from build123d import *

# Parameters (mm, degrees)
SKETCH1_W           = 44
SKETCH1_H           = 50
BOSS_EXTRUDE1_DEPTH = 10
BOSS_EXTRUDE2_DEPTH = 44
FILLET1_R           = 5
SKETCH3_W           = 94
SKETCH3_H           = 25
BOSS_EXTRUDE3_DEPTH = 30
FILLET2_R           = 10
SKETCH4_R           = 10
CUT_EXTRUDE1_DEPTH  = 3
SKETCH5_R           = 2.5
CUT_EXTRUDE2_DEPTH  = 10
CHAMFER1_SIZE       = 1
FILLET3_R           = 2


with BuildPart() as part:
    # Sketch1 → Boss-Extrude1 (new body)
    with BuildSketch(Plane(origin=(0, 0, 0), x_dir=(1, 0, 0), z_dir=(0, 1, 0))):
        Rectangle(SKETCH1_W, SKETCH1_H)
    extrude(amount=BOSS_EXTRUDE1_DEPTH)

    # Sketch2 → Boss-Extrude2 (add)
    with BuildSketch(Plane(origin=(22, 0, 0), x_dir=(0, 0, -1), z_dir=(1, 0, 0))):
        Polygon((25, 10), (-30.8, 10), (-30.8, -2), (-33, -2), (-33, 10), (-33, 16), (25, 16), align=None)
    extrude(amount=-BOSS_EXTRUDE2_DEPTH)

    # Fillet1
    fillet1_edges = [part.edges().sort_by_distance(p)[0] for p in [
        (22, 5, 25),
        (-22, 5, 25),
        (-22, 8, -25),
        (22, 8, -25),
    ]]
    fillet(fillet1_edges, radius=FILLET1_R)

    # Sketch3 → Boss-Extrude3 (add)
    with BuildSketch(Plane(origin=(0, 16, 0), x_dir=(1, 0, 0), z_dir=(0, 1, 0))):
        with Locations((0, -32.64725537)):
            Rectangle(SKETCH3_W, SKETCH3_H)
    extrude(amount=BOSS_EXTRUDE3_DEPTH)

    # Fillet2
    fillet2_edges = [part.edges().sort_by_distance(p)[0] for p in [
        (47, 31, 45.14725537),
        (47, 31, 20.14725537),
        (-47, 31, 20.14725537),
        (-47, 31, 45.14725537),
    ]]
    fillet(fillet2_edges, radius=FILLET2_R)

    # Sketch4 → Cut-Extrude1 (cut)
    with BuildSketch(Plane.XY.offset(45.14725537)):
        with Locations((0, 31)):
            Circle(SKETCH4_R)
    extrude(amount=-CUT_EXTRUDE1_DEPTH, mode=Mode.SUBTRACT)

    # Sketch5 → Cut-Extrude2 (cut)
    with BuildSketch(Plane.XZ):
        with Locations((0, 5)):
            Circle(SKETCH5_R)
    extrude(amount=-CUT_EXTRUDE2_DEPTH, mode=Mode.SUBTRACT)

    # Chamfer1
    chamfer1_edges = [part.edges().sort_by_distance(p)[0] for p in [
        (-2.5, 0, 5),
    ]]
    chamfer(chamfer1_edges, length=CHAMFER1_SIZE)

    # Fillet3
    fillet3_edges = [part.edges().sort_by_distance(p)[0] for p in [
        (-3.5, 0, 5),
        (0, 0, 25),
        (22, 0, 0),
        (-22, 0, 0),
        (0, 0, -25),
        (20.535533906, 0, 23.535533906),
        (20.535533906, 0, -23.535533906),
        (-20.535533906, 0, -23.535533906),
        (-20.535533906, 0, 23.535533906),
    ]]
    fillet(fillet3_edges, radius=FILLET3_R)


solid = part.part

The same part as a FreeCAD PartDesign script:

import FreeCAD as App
import Part
import Sketcher


def edges_at(feature, points):
    """Names of the edges that pass closest to the given points."""
    edges = feature.Shape.Edges
    near = lambda p: min(range(len(edges)), key=lambda i: edges[i].distToShape(Part.Vertex(*p))[0])
    return sorted({f"Edge{near(p) + 1}" for p in points})


def add_polygon(sketch, points):
    """Adds a closed chain of lines whose ends are joined by coincident constraints."""
    first, n = sketch.GeometryCount, len(points)
    for a, b in zip(points, points[1:] + points[:1]):
        sketch.addGeometry(Part.LineSegment(App.Vector(*a, 0), App.Vector(*b, 0)), False)
    for i in range(n):
        sketch.addConstraint(Sketcher.Constraint("Coincident", first + i, 2, first + (i + 1) % n, 1))

doc = App.newDocument("Part")
body = doc.addObject("PartDesign::Body", "Body")

# Sketch on XZ plane
sketch1 = body.newObject("Sketcher::SketchObject", "Sketch")
sketch1.AttachmentSupport = (doc.getObject("XZ_Plane"), [""])
sketch1.MapMode = "FlatFace"
add_polygon(sketch1, [(-22, -25), (-22, 25), (22, 25), (22, -25)])  # lines 0-3
sketch1.addConstraint([
    Sketcher.Constraint("Vertical", 0),
    Sketcher.Constraint("Horizontal", 1),
    Sketcher.Constraint("Vertical", 2),
    Sketcher.Constraint("Horizontal", 3),
    Sketcher.Constraint("Symmetric", 0, 2, 2, 2, -1, 1),
    Sketcher.Constraint("DistanceX", 1, 1, 1, 2, 44.0),
    Sketcher.Constraint("DistanceY", 0, 1, 0, 2, 50.0),
])
pad1 = body.newObject("PartDesign::Pad", "Pad")
pad1.Profile = sketch1
pad1.Length = 10
pad1.Reversed = True

# Sketch on YZ plane
sketch2 = body.newObject("Sketcher::SketchObject", "Sketch001")
sketch2.AttachmentSupport = (doc.getObject("YZ_Plane"), [""])
sketch2.MapMode = "FlatFace"
sketch2.AttachmentOffset = App.Placement(App.Vector(0, 0, 22), App.Rotation())
add_polygon(sketch2, [(10, 30.8), (10, -25), (16, -25), (16, 33), (-2, 33), (-2, 30.8)])  # lines 0-5
sketch2.addConstraint([
    Sketcher.Constraint("Vertical", 0),
    Sketcher.Constraint("Horizontal", 1),
    Sketcher.Constraint("Vertical", 2),
    Sketcher.Constraint("Horizontal", 3),
    Sketcher.Constraint("Vertical", 4),
    Sketcher.Constraint("Horizontal", 5),
    Sketcher.Constraint("DistanceX", 1, 1, 1, 2, 6.0),
    Sketcher.Constraint("DistanceX", 3, 2, 3, 1, 18.0),
    Sketcher.Constraint("DistanceY", 2, 1, 2, 2, 58.0),
    Sketcher.Constraint("DistanceY", 0, 2, 0, 1, 55.8),
    Sketcher.Constraint("DistanceX", -1, 1, 0, 2, 10.0),
    Sketcher.Constraint("DistanceY", 0, 2, -1, 1, 25.0),
])
pad2 = body.newObject("PartDesign::Pad", "Pad001")
pad2.Profile = sketch2
pad2.Length = 44
pad2.Reversed = True
doc.recompute()

fillet = body.newObject("PartDesign::Fillet", "Fillet")
fillet.Base = (pad2, edges_at(pad2, [
    (22, 5, 25),
    (-22, 5, 25),
    (-22, 8, -25),
    (22, 8, -25),
]))
fillet.Radius = 5

# Sketch on XZ plane
sketch3 = body.newObject("Sketcher::SketchObject", "Sketch002")
sketch3.AttachmentSupport = (doc.getObject("XZ_Plane"), [""])
sketch3.MapMode = "FlatFace"
sketch3.AttachmentOffset = App.Placement(App.Vector(0, 0, -16), App.Rotation())
add_polygon(sketch3, [(-47, 20.147255), (-47, 45.147255), (47, 45.147255), (47, 20.147255)])  # lines 0-3
sketch3.addConstraint([
    Sketcher.Constraint("Vertical", 0),
    Sketcher.Constraint("Horizontal", 1),
    Sketcher.Constraint("Vertical", 2),
    Sketcher.Constraint("Horizontal", 3),
    Sketcher.Constraint("DistanceX", 1, 1, 1, 2, 94.0),
    Sketcher.Constraint("DistanceY", 0, 1, 0, 2, 25.0),
    Sketcher.Constraint("DistanceX", 0, 2, -1, 1, 47.0),
    Sketcher.Constraint("DistanceY", -1, 1, 0, 2, 45.147255),
])
pad3 = body.newObject("PartDesign::Pad", "Pad002")
pad3.Profile = sketch3
pad3.Length = 30
pad3.Reversed = True
doc.recompute()

fillet2 = body.newObject("PartDesign::Fillet", "Fillet001")
fillet2.Base = (pad3, edges_at(pad3, [
    (47, 31, 45.147),
    (47, 31, 20.147),
    (-47, 31, 20.147),
    (-47, 31, 45.147),
]))
fillet2.Radius = 10

# Sketch on XY plane
sketch4 = body.newObject("Sketcher::SketchObject", "Sketch003")
sketch4.AttachmentSupport = (doc.getObject("XY_Plane"), [""])
sketch4.MapMode = "FlatFace"
sketch4.AttachmentOffset = App.Placement(App.Vector(0, 0, 45.147255), App.Rotation())
sketch4.addGeometry(Part.Circle(App.Vector(0, 31, 0), App.Vector(0, 0, 1), 10), False)
sketch4.addConstraint([
    Sketcher.Constraint("PointOnObject", 0, 3, -2),
    Sketcher.Constraint("Diameter", 0, 20.0),
    Sketcher.Constraint("DistanceY", -1, 1, 0, 3, 31.0),
])
pocket1 = body.newObject("PartDesign::Pocket", "Pocket")
pocket1.Profile = sketch4
pocket1.Length = 3

# Sketch on XZ plane
sketch5 = body.newObject("Sketcher::SketchObject", "Sketch004")
sketch5.AttachmentSupport = (doc.getObject("XZ_Plane"), [""])
sketch5.MapMode = "FlatFace"
sketch5.addGeometry(Part.Circle(App.Vector(0, 5, 0), App.Vector(0, 0, 1), 2.5), False)
sketch5.addConstraint([
    Sketcher.Constraint("PointOnObject", 0, 3, -2),
    Sketcher.Constraint("Diameter", 0, 5.0),
    Sketcher.Constraint("DistanceY", -1, 1, 0, 3, 5.0),
])
pocket2 = body.newObject("PartDesign::Pocket", "Pocket001")
pocket2.Profile = sketch5
pocket2.Length = 10
doc.recompute()

chamfer = body.newObject("PartDesign::Chamfer", "Chamfer")
chamfer.Base = (pocket2, edges_at(pocket2, [(-2.5, 0, 5)]))
chamfer.Size = 1
doc.recompute()

fillet3 = body.newObject("PartDesign::Fillet", "Fillet002")
fillet3.Base = (chamfer, edges_at(chamfer, [
    (-3.5, 0, 5),
    (0, 0, 25),
    (22, 0, 0),
    (-22, 0, 0),
    (0, 0, -25),
    (20.536, 0, 23.536),
    (20.536, 0, -23.536),
    (-20.536, 0, -23.536),
    (-20.536, 0, 23.536),
]))
fillet3.Radius = 2

doc.recompute()
